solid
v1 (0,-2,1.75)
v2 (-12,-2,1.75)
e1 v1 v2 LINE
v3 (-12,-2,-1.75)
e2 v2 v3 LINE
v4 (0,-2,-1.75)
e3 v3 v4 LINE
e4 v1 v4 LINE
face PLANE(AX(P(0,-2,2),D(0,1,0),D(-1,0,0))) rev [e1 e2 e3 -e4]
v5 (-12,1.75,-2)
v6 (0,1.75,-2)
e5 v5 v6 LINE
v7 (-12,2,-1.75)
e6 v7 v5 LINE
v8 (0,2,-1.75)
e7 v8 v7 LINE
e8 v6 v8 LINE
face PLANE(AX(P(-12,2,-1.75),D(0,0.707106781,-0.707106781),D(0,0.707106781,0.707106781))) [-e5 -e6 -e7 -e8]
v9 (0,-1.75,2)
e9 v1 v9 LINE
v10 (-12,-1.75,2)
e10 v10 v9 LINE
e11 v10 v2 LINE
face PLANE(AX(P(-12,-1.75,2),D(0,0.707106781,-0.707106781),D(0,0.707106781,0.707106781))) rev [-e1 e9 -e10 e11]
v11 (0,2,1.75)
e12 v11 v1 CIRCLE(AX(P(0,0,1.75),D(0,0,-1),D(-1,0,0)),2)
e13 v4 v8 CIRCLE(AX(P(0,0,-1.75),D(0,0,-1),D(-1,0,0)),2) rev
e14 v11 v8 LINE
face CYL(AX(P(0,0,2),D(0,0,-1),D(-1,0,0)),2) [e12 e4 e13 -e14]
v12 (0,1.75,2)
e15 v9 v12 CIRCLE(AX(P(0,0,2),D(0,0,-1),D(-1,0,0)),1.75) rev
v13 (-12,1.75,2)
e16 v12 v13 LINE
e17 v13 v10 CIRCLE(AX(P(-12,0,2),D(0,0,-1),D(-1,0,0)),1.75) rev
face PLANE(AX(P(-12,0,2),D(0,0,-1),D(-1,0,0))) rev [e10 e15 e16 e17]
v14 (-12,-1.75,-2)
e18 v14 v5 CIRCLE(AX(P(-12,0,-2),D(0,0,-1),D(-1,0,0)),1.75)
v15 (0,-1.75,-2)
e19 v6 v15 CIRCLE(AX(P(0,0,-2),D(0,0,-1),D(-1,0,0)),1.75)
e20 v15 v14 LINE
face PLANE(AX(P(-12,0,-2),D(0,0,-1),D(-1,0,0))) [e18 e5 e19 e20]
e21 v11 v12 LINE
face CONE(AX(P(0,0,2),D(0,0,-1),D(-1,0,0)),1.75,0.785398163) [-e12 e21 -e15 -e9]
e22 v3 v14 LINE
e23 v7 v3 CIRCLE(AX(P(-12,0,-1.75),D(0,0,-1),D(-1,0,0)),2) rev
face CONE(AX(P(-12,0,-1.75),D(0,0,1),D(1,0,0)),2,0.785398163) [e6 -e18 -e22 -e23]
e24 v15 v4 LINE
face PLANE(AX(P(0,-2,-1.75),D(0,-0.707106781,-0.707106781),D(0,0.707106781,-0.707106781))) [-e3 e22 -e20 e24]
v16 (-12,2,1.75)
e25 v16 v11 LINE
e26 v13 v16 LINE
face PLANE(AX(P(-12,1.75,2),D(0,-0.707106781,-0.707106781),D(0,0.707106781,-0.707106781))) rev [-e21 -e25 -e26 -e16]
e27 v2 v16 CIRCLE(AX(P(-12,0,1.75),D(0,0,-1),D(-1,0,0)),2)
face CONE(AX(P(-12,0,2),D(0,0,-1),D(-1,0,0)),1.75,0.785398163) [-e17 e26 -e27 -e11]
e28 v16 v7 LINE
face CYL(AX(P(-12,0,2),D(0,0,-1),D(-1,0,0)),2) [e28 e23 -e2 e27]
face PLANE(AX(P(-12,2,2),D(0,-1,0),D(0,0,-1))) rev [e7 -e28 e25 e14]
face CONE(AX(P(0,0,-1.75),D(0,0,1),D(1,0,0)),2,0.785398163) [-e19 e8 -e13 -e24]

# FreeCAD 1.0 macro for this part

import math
import FreeCAD as App
import Part
import Sketcher
from FreeCAD import Vector
Q = App.Units.Quantity


def edges_at(feature, points):
    """Names of the edges that pass closest to the given points."""
    edges = feature.Shape.Edges
    near = lambda p: min(range(len(edges)), key=lambda i: edges[i].distToShape(Part.Vertex(*p))[0])
    return sorted({f"Edge{near(p) + 1}" for p in points})

doc = App.newDocument("Part")
params = doc.addObject("Spreadsheet::Sheet", "Params")
for row, (alias, value) in enumerate([
    ("sketch1_radius", "2 mm"),
    ("sketch1_width", "12 mm"),
    ("pad1_length", "4 mm"),
    ("chamfer_size", "0.25 mm"),
], start=1):
    params.set(f"A{row}", alias)
    params.set(f"B{row}", "=" + value)
    params.setAlias(f"B{row}", alias)

body = doc.addObject("PartDesign::Body", "Body")

# Sketch on XY plane
sketch1 = body.newObject("Sketcher::SketchObject", "Sketch")
sketch1.AttachmentSupport = (doc.getObject("XY_Plane"), [""])
sketch1.MapMode = "FlatFace"
sketch1.addGeometry(Part.LineSegment(Vector(0, 2, 0), Vector(-12, 2, 0)), False)
sketch1.addGeometry(Part.ArcOfCircle(Part.Circle(Vector(-12, 0, 0), Vector(0, 0, 1), 2), math.radians(90), math.radians(270)), False)
sketch1.addGeometry(Part.LineSegment(Vector(-12, -2, 0), Vector(0, -2, 0)), False)
sketch1.addGeometry(Part.ArcOfCircle(Part.Circle(Vector(0, 0, 0), Vector(0, 0, 1), 2), math.radians(-90), math.radians(90)), False)
sketch1.addConstraint(Sketcher.Constraint("Tangent", 0, 2, 1, 1))
sketch1.addConstraint(Sketcher.Constraint("Tangent", 1, 2, 2, 1))
sketch1.addConstraint(Sketcher.Constraint("Tangent", 2, 2, 3, 1))
sketch1.addConstraint(Sketcher.Constraint("Tangent", 3, 2, 0, 1))
sketch1.addConstraint(Sketcher.Constraint("Horizontal", 0))
sketch1.addConstraint(Sketcher.Constraint("Horizontal", 2))
sketch1.addConstraint(Sketcher.Constraint("Coincident", 3, 3, -1, 1))
sketch1.addConstraint(Sketcher.Constraint("Radius", 1, Q("2 mm")))
sketch1.addConstraint(Sketcher.Constraint("DistanceX", 0, 2, 0, 1, Q("12 mm")))
sketch1.setExpression("Constraints[7]", "Params.sketch1_radius")
sketch1.setExpression("Constraints[8]", "Params.sketch1_width")
pad1 = body.newObject("PartDesign::Pad", "Pad")
pad1.Profile = sketch1
pad1.setExpression("Length", "Params.pad1_length")
pad1.Midplane = True
doc.recompute()

chamfer = body.newObject("PartDesign::Chamfer", "Chamfer")
chamfer.Base = (pad1, edges_at(pad1, [
    (2, 0, 2),
    (-6, 2, 2),
    (-14, 0, 2),
    (-6, 2, -2),
    (2, 0, -2),
    (-6, -2, -2),
    (-14, 0, -2),
    (-6, -2, 2),
]))
chamfer.setExpression("Size", "Params.chamfer_size")

doc.recompute()
